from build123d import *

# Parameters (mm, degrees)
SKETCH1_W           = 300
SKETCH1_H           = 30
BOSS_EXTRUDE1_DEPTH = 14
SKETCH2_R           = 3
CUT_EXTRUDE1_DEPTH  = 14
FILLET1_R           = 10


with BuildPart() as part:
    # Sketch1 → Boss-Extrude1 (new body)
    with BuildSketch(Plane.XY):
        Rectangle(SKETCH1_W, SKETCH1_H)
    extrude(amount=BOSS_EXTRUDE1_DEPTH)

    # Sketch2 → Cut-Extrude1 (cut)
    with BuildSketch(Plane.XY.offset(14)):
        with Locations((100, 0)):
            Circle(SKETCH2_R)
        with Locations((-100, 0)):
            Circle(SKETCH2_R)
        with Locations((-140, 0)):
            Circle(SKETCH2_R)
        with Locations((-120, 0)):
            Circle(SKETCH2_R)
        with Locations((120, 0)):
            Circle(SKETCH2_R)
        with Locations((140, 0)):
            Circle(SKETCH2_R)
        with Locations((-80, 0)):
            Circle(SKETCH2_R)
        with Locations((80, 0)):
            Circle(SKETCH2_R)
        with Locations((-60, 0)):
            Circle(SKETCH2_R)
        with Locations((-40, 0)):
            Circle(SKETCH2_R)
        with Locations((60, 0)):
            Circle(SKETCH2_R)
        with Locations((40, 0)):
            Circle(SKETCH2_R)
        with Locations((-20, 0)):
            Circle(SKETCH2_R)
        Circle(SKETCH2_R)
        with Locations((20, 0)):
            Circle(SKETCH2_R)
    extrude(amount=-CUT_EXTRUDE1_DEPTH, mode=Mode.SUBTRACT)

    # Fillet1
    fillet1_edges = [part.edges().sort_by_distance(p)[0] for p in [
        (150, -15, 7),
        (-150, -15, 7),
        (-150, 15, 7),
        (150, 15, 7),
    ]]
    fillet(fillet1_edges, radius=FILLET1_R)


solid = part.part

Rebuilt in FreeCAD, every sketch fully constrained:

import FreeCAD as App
import Part
import Sketcher
from FreeCAD import Vector


def edges_at(feature, points):
    """Names of the edges that pass closest to the given points."""
    edges = feature.Shape.Edges
    near = lambda p: min(range(len(edges)), key=lambda i: edges[i].distToShape(Part.Vertex(*p))[0])
    return sorted({f"Edge{near(p) + 1}" for p in points})


def add_polygon(sketch, points):
    """Adds a closed chain of lines whose ends are joined by coincident constraints."""
    first, n = sketch.GeometryCount, len(points)
    for a, b in zip(points, points[1:] + points[:1]):
        sketch.addGeometry(Part.LineSegment(App.Vector(*a, 0), App.Vector(*b, 0)), False)
    for i in range(n):
        sketch.addConstraint(Sketcher.Constraint("Coincident", first + i, 2, first + (i + 1) % n, 1))

doc = App.newDocument("Part")
body = doc.addObject("PartDesign::Body", "Body")

# Sketch on XY plane
sketch1 = body.newObject("Sketcher::SketchObject", "Sketch")
sketch1.AttachmentSupport = (doc.getObject("XY_Plane"), [""])
sketch1.MapMode = "FlatFace"
add_polygon(sketch1, [(-150, 15), (-150, -15), (150, -15), (150, 15)])  # lines 0-3
sketch1.addConstraint([
    Sketcher.Constraint("Vertical", 0),
    Sketcher.Constraint("Horizontal", 1),
    Sketcher.Constraint("Vertical", 2),
    Sketcher.Constraint("Horizontal", 3),
    Sketcher.Constraint("Symmetric", 0, 2, 2, 2, -1, 1),
    Sketcher.Constraint("DistanceX", 1, 1, 1, 2, 300.0),
    Sketcher.Constraint("DistanceY", 0, 2, 0, 1, 30.0),
])
pad1 = body.newObject("PartDesign::Pad", "Pad")
pad1.Profile = sketch1
pad1.Length = 14

# Sketch on XY plane
sketch2 = body.newObject("Sketcher::SketchObject", "Sketch001")
sketch2.AttachmentSupport = (doc.getObject("XY_Plane"), [""])
sketch2.MapMode = "FlatFace"
sketch2.AttachmentOffset = App.Placement(Vector(0, 0, 14), App.Rotation())
sketch2.addGeometry([
    Part.Circle(Vector(100, 0, 0), Vector(0, 0, 1), 3),  # 0
    Part.Circle(Vector(-100, 0, 0), Vector(0, 0, 1), 3),  # 1
    Part.Circle(Vector(-140, 0, 0), Vector(0, 0, 1), 3),  # 2
    Part.Circle(Vector(-120, 0, 0), Vector(0, 0, 1), 3),  # 3
    Part.Circle(Vector(120, 0, 0), Vector(0, 0, 1), 3),  # 4
    Part.Circle(Vector(140, 0, 0), Vector(0, 0, 1), 3),  # 5
    Part.Circle(Vector(-80, 0, 0), Vector(0, 0, 1), 3),  # 6
    Part.Circle(Vector(80, 0, 0), Vector(0, 0, 1), 3),  # 7
    Part.Circle(Vector(-60, 0, 0), Vector(0, 0, 1), 3),  # 8
    Part.Circle(Vector(-40, 0, 0), Vector(0, 0, 1), 3),  # 9
    Part.Circle(Vector(60, 0, 0), Vector(0, 0, 1), 3),  # 10
    Part.Circle(Vector(40, 0, 0), Vector(0, 0, 1), 3),  # 11
    Part.Circle(Vector(-20, 0, 0), Vector(0, 0, 1), 3),  # 12
    Part.Circle(Vector(0, 0, 0), Vector(0, 0, 1), 3),  # 13
    Part.Circle(Vector(20, 0, 0), Vector(0, 0, 1), 3),  # 14
], False)
sketch2.addConstraint([
    Sketcher.Constraint("Coincident", 13, 3, -1, 1),
    Sketcher.Constraint("Equal", 0, 1),
    Sketcher.Constraint("Equal", 1, 2),
    Sketcher.Constraint("Equal", 2, 3),
    Sketcher.Constraint("Equal", 3, 4),
    Sketcher.Constraint("Equal", 4, 5),
    Sketcher.Constraint("Equal", 5, 6),
    Sketcher.Constraint("Equal", 6, 7),
    Sketcher.Constraint("Equal", 7, 8),
    Sketcher.Constraint("Equal", 8, 9),
    Sketcher.Constraint("Equal", 9, 10),
    Sketcher.Constraint("Equal", 10, 11),
    Sketcher.Constraint("Equal", 11, 12),
    Sketcher.Constraint("Equal", 12, 13),
    Sketcher.Constraint("Equal", 13, 14),
    Sketcher.Constraint("Symmetric", 0, 3, 1, 3, -1, 1),
    Sketcher.Constraint("Symmetric", 3, 3, 4, 3, -1, 1),
    Sketcher.Constraint("Symmetric", 2, 3, 5, 3, -1, 1),
    Sketcher.Constraint("Symmetric", 6, 3, 7, 3, -1, 1),
    Sketcher.Constraint("Symmetric", 8, 3, 10, 3, -1, 1),
    Sketcher.Constraint("Symmetric", 9, 3, 11, 3, -1, 1),
    Sketcher.Constraint("Symmetric", 12, 3, 14, 3, -1, 1),
    Sketcher.Constraint("PointOnObject", 0, 3, -1),
    Sketcher.Constraint("PointOnObject", 2, 3, -1),
    Sketcher.Constraint("PointOnObject", 3, 3, -1),
    Sketcher.Constraint("PointOnObject", 6, 3, -1),
    Sketcher.Constraint("PointOnObject", 8, 3, -1),
    Sketcher.Constraint("PointOnObject", 9, 3, -1),
    Sketcher.Constraint("PointOnObject", 12, 3, -1),
    Sketcher.Constraint("Diameter", 0, 6.0),
    Sketcher.Constraint("DistanceX", -1, 1, 0, 3, 100.0),
    Sketcher.Constraint("DistanceX", 2, 3, -1, 1, 140.0),
    Sketcher.Constraint("DistanceX", 3, 3, -1, 1, 120.0),
    Sketcher.Constraint("DistanceX", 6, 3, -1, 1, 80.0),
    Sketcher.Constraint("DistanceX", 8, 3, -1, 1, 60.0),
    Sketcher.Constraint("DistanceX", 9, 3, -1, 1, 40.0),
    Sketcher.Constraint("DistanceX", 12, 3, -1, 1, 20.0),
])
pocket1 = body.newObject("PartDesign::Pocket", "Pocket")
pocket1.Profile = sketch2
pocket1.Length = 14
doc.recompute()

fillet = body.newObject("PartDesign::Fillet", "Fillet")
fillet.Base = (pocket1, edges_at(pocket1, [
    (150, -15, 7),
    (-150, -15, 7),
    (-150, 15, 7),
    (150, 15, 7),
]))
fillet.Radius = 10

doc.recompute()
